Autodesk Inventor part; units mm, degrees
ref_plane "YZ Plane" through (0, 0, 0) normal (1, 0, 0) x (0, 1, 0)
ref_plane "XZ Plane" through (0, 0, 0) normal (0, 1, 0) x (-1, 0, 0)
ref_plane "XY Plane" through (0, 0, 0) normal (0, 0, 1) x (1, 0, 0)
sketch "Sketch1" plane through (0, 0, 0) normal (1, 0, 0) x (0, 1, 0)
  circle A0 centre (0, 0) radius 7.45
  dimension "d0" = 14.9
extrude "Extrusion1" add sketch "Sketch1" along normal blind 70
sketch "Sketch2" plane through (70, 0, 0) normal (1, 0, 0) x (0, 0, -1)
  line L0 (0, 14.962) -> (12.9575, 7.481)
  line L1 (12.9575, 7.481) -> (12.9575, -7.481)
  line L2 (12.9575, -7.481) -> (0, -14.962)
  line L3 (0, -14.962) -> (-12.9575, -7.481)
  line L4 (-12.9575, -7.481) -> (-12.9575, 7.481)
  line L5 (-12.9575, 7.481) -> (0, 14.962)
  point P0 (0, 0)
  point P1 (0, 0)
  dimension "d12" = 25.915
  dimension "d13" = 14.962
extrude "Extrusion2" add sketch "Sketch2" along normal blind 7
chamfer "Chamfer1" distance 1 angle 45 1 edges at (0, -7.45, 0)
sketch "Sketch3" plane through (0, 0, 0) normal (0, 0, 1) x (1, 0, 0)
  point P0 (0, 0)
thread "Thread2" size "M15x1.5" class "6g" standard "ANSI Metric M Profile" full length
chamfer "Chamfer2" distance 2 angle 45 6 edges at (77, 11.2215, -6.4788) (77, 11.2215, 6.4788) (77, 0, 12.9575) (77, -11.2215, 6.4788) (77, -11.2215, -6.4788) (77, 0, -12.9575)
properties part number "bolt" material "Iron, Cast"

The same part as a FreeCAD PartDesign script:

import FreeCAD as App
import Part
import Sketcher
Q = App.Units.Quantity


def edges_at(feature, points):
    """Names of the edges that pass closest to the given points."""
    edges = feature.Shape.Edges
    near = lambda p: min(range(len(edges)), key=lambda i: edges[i].distToShape(Part.Vertex(*p))[0])
    return sorted({f"Edge{near(p) + 1}" for p in points})

doc = App.newDocument("Part")
params = doc.addObject("Spreadsheet::Sheet", "Params")
for row, (alias, value) in enumerate([
    ("sketch1_diameter", "14.9 mm"),
    ("pad1_length", "70 mm"),
    ("pad2_length", "7 mm"),
    ("chamfer_size", "1 mm"),
    ("chamfer2_size", "2 mm"),
], start=1):
    params.set(f"A{row}", alias)
    params.set(f"B{row}", "=" + value)
    params.setAlias(f"B{row}", alias)

body = doc.addObject("PartDesign::Body", "Body")

# Sketch on YZ plane
sketch1 = body.newObject("Sketcher::SketchObject", "Sketch")
sketch1.AttachmentSupport = (doc.getObject("YZ_Plane"), [""])
sketch1.MapMode = "FlatFace"
sketch1.addGeometry(Part.Circle(App.Vector(0, 0, 0), App.Vector(0, 0, 1), 7), False)
sketch1.addConstraint(Sketcher.Constraint("Coincident", 0, 3, -1, 1))
sketch1.addConstraint(Sketcher.Constraint("Diameter", 0, 14.9))
sketch1.setExpression("Constraints[1]", "Params.sketch1_diameter")
pad1 = body.newObject("PartDesign::Pad", "Pad")
pad1.Profile = sketch1
pad1.setExpression("Length", "Params.pad1_length")

# Sketch on YZ plane
sketch2 = body.newObject("Sketcher::SketchObject", "Sketch001")
sketch2.AttachmentSupport = (doc.getObject("YZ_Plane"), [""])
sketch2.MapMode = "FlatFace"
sketch2.AttachmentOffset = App.Placement(App.Vector(0, 0, 70), App.Rotation())
sketch2.addGeometry(Part.LineSegment(App.Vector(7, -13, 0), App.Vector(15, 0, 0)), False)
sketch2.addGeometry(Part.LineSegment(App.Vector(15, 0, 0), App.Vector(7, 13, 0)), False)
sketch2.addGeometry(Part.LineSegment(App.Vector(7, 13, 0), App.Vector(-7, 13, 0)), False)
sketch2.addGeometry(Part.LineSegment(App.Vector(-7, 13, 0), App.Vector(-15, 0, 0)), False)
sketch2.addGeometry(Part.LineSegment(App.Vector(-15, 0, 0), App.Vector(-7, -13, 0)), False)
sketch2.addGeometry(Part.LineSegment(App.Vector(-7, -13, 0), App.Vector(7, -13, 0)), False)
sketch2.addConstraint(Sketcher.Constraint("Coincident", 0, 2, 1, 1))
sketch2.addConstraint(Sketcher.Constraint("Coincident", 1, 2, 2, 1))
sketch2.addConstraint(Sketcher.Constraint("Coincident", 2, 2, 3, 1))
sketch2.addConstraint(Sketcher.Constraint("Coincident", 3, 2, 4, 1))
sketch2.addConstraint(Sketcher.Constraint("Coincident", 4, 2, 5, 1))
sketch2.addConstraint(Sketcher.Constraint("Coincident", 5, 2, 0, 1))
sketch2.addConstraint(Sketcher.Constraint("Horizontal", 2))
sketch2.addConstraint(Sketcher.Constraint("Horizontal", 5))
sketch2.addConstraint(Sketcher.Constraint("Symmetric", 0, 2, 3, 2, -1, 1))
sketch2.addConstraint(Sketcher.Constraint("Symmetric", 1, 2, 4, 2, -1, 1))
sketch2.addConstraint(Sketcher.Constraint("PointOnObject", 0, 2, -1))
sketch2.addConstraint(Sketcher.Constraint("Parallel", 0, 3))
sketch2.addConstraint(Sketcher.Constraint("Vertical", 2, 2, 4, 2))
sketch2.addConstraint(Sketcher.Constraint("DistanceX", 2, 2, 2, 1, 14.962))
sketch2.addConstraint(Sketcher.Constraint("Angle", 0, Q("60 deg")))
sketch2.addConstraint(Sketcher.Constraint("Distance", 0, 14.962))
pad2 = body.newObject("PartDesign::Pad", "Pad001")
pad2.Profile = sketch2
pad2.setExpression("Length", "Params.pad2_length")
doc.recompute()

chamfer = body.newObject("PartDesign::Chamfer", "Chamfer")
chamfer.Base = (pad2, edges_at(pad2, [(0, -7.45, 0)]))
chamfer.setExpression("Size", "Params.chamfer_size")
doc.recompute()

chamfer2 = body.newObject("PartDesign::Chamfer", "Chamfer001")
chamfer2.Base = (chamfer, edges_at(chamfer, [
    (77, 11.222, -6.479),
    (77, 11.222, 6.479),
    (77, 0, 12.957),
    (77, -11.222, 6.479),
    (77, -11.222, -6.479),
    (77, 0, -12.957),
]))
chamfer2.setExpression("Size", "Params.chamfer2_size")

doc.recompute()
